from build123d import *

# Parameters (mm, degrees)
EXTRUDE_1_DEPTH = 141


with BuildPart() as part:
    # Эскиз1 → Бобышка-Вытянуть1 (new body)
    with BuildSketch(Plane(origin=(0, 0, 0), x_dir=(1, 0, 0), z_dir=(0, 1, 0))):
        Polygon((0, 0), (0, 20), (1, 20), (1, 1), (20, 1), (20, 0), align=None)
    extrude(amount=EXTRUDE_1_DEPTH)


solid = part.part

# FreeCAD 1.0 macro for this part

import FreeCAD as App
import Part
import Sketcher

V = App.Vector
Q = App.Units.Quantity


def add_polygon(sketch, points):
    """Adds a closed chain of lines whose ends are joined by coincident constraints."""
    first, n = sketch.GeometryCount, len(points)
    for a, b in zip(points, points[1:] + points[:1]):
        sketch.addGeometry(Part.LineSegment(App.Vector(*a, 0), App.Vector(*b, 0)), False)
    for i in range(n):
        sketch.addConstraint(Sketcher.Constraint("Coincident", first + i, 2, first + (i + 1) % n, 1))

doc = App.newDocument("Part")
params = doc.addObject("Spreadsheet::Sheet", "Params")
for row, (alias, value) in enumerate([
    ("sketch1_width", "20 mm"),
    ("sketch1_width2", "19 mm"),
    ("pad1_length", "141 mm"),
], start=1):
    params.set(f"A{row}", alias)
    params.set(f"B{row}", "=" + value)
    params.setAlias(f"B{row}", alias)

body = doc.addObject("PartDesign::Body", "Body")

# Sketch on XZ plane
sketch1 = doc.addObject("Sketcher::SketchObject", "Sketch")
body.addObject(sketch1)
sketch1.AttachmentSupport = (doc.XZ_Plane, [""])
sketch1.MapMode = "FlatFace"
add_polygon(sketch1, [(0, -20), (0, 0), (20, 0), (20, -1), (1, -1), (1, -20)])  # lines 0-5
sketch1.addConstraint([
    Sketcher.Constraint("Vertical", 0),
    Sketcher.Constraint("Horizontal", 1),
    Sketcher.Constraint("Vertical", 2),
    Sketcher.Constraint("Horizontal", 3),
    Sketcher.Constraint("Vertical", 4),
    Sketcher.Constraint("Horizontal", 5),
    Sketcher.Constraint("Coincident", 0, 2, -1, 1),
    Sketcher.Constraint("Equal", 1, 0),
    Sketcher.Constraint("Equal", 5, 2),
    Sketcher.Constraint("DistanceX", 1, 1, 1, 2, Q("20 mm")),
    Sketcher.Constraint("DistanceX", 3, 2, 3, 1, Q("19 mm")),
])
sketch1.setExpression("Constraints[15]", "Params.sketch1_width")
sketch1.setExpression("Constraints[16]", "Params.sketch1_width2")
pad1 = doc.addObject("PartDesign::Pad", "Pad")
body.addObject(pad1)
pad1.Profile = sketch1
pad1.setExpression("Length", "Params.pad1_length")
pad1.Reversed = True

doc.recompute()
